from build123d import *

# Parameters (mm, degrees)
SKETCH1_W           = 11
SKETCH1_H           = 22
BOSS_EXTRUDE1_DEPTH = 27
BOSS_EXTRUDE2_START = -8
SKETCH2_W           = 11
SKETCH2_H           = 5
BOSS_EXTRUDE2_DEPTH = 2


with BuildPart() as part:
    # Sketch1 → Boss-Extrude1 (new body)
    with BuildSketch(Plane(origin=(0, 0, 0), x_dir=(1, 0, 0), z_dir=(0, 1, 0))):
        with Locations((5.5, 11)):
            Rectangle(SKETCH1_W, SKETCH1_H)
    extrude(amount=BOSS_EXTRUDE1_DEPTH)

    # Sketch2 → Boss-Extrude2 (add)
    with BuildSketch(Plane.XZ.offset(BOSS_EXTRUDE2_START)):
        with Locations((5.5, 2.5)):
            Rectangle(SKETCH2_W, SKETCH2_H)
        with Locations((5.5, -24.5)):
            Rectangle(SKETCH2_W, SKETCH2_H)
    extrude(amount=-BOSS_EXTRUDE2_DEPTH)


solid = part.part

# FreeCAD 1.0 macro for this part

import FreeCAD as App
import Part
import Sketcher
from FreeCAD import Vector
Q = App.Units.Quantity


def add_polygon(sketch, points):
    """Adds a closed chain of lines whose ends are joined by coincident constraints."""
    first, n = sketch.GeometryCount, len(points)
    for a, b in zip(points, points[1:] + points[:1]):
        sketch.addGeometry(Part.LineSegment(App.Vector(*a, 0), App.Vector(*b, 0)), False)
    for i in range(n):
        sketch.addConstraint(Sketcher.Constraint("Coincident", first + i, 2, first + (i + 1) % n, 1))

doc = App.newDocument("Part")
body = doc.addObject("PartDesign::Body", "Body")

sketch1 = body.newObject("Sketcher::SketchObject", "Sketch")
sketch1.AttachmentSupport = (doc.getObject("XZ_Plane"), [""])
sketch1.MapMode = "FlatFace"
add_polygon(sketch1, [(0, -22), (0, 0), (11, 0), (11, -22)])
sketch1.addConstraint([
    Sketcher.Constraint("Vertical", 0),
    Sketcher.Constraint("Horizontal", 1),
    Sketcher.Constraint("Vertical", 2),
    Sketcher.Constraint("Horizontal", 3),
    Sketcher.Constraint("Coincident", 0, 2, -1, 1),
    Sketcher.Constraint("DistanceX", 1, 1, 1, 2, Q("11 mm")),
    Sketcher.Constraint("DistanceY", 0, 1, 0, 2, Q("22 mm")),
])
pad1 = body.newObject("PartDesign::Pad", "Pad")
pad1.Profile = sketch1
pad1.Length = 27
pad1.Reversed = True

sketch2 = body.newObject("Sketcher::SketchObject", "Sketch001")
sketch2.AttachmentSupport = (doc.getObject("XZ_Plane"), [""])
sketch2.MapMode = "FlatFace"
sketch2.AttachmentOffset = App.Placement(Vector(0, 0, -8), App.Rotation())
add_polygon(sketch2, [(0, 5), (0, 0), (11, 0), (11, 5)])
add_polygon(sketch2, [(0, -22), (0, -27), (11, -27), (11, -22)])
sketch2.addConstraint([
    Sketcher.Constraint("Vertical", 0),
    Sketcher.Constraint("Horizontal", 1),
    Sketcher.Constraint("Vertical", 2),
    Sketcher.Constraint("Horizontal", 3),
    Sketcher.Constraint("Vertical", 4),
    Sketcher.Constraint("Horizontal", 5),
    Sketcher.Constraint("Vertical", 6),
    Sketcher.Constraint("Horizontal", 7),
    Sketcher.Constraint("Coincident", 0, 2, -1, 1),
    Sketcher.Constraint("PointOnObject", 4, 2, -2),
    Sketcher.Constraint("Vertical", 2, 2, 5, 2),
    Sketcher.Constraint("Equal", 2, 4),
    Sketcher.Constraint("DistanceX", 1, 1, 1, 2, Q("11 mm")),
    Sketcher.Constraint("DistanceY", 0, 2, 0, 1, Q("5 mm")),
    Sketcher.Constraint("DistanceY", 4, 2, -1, 1, Q("27 mm")),
])
pad2 = body.newObject("PartDesign::Pad", "Pad001")
pad2.Profile = sketch2
pad2.Length = 2
pad2.Reversed = True

doc.recompute()
